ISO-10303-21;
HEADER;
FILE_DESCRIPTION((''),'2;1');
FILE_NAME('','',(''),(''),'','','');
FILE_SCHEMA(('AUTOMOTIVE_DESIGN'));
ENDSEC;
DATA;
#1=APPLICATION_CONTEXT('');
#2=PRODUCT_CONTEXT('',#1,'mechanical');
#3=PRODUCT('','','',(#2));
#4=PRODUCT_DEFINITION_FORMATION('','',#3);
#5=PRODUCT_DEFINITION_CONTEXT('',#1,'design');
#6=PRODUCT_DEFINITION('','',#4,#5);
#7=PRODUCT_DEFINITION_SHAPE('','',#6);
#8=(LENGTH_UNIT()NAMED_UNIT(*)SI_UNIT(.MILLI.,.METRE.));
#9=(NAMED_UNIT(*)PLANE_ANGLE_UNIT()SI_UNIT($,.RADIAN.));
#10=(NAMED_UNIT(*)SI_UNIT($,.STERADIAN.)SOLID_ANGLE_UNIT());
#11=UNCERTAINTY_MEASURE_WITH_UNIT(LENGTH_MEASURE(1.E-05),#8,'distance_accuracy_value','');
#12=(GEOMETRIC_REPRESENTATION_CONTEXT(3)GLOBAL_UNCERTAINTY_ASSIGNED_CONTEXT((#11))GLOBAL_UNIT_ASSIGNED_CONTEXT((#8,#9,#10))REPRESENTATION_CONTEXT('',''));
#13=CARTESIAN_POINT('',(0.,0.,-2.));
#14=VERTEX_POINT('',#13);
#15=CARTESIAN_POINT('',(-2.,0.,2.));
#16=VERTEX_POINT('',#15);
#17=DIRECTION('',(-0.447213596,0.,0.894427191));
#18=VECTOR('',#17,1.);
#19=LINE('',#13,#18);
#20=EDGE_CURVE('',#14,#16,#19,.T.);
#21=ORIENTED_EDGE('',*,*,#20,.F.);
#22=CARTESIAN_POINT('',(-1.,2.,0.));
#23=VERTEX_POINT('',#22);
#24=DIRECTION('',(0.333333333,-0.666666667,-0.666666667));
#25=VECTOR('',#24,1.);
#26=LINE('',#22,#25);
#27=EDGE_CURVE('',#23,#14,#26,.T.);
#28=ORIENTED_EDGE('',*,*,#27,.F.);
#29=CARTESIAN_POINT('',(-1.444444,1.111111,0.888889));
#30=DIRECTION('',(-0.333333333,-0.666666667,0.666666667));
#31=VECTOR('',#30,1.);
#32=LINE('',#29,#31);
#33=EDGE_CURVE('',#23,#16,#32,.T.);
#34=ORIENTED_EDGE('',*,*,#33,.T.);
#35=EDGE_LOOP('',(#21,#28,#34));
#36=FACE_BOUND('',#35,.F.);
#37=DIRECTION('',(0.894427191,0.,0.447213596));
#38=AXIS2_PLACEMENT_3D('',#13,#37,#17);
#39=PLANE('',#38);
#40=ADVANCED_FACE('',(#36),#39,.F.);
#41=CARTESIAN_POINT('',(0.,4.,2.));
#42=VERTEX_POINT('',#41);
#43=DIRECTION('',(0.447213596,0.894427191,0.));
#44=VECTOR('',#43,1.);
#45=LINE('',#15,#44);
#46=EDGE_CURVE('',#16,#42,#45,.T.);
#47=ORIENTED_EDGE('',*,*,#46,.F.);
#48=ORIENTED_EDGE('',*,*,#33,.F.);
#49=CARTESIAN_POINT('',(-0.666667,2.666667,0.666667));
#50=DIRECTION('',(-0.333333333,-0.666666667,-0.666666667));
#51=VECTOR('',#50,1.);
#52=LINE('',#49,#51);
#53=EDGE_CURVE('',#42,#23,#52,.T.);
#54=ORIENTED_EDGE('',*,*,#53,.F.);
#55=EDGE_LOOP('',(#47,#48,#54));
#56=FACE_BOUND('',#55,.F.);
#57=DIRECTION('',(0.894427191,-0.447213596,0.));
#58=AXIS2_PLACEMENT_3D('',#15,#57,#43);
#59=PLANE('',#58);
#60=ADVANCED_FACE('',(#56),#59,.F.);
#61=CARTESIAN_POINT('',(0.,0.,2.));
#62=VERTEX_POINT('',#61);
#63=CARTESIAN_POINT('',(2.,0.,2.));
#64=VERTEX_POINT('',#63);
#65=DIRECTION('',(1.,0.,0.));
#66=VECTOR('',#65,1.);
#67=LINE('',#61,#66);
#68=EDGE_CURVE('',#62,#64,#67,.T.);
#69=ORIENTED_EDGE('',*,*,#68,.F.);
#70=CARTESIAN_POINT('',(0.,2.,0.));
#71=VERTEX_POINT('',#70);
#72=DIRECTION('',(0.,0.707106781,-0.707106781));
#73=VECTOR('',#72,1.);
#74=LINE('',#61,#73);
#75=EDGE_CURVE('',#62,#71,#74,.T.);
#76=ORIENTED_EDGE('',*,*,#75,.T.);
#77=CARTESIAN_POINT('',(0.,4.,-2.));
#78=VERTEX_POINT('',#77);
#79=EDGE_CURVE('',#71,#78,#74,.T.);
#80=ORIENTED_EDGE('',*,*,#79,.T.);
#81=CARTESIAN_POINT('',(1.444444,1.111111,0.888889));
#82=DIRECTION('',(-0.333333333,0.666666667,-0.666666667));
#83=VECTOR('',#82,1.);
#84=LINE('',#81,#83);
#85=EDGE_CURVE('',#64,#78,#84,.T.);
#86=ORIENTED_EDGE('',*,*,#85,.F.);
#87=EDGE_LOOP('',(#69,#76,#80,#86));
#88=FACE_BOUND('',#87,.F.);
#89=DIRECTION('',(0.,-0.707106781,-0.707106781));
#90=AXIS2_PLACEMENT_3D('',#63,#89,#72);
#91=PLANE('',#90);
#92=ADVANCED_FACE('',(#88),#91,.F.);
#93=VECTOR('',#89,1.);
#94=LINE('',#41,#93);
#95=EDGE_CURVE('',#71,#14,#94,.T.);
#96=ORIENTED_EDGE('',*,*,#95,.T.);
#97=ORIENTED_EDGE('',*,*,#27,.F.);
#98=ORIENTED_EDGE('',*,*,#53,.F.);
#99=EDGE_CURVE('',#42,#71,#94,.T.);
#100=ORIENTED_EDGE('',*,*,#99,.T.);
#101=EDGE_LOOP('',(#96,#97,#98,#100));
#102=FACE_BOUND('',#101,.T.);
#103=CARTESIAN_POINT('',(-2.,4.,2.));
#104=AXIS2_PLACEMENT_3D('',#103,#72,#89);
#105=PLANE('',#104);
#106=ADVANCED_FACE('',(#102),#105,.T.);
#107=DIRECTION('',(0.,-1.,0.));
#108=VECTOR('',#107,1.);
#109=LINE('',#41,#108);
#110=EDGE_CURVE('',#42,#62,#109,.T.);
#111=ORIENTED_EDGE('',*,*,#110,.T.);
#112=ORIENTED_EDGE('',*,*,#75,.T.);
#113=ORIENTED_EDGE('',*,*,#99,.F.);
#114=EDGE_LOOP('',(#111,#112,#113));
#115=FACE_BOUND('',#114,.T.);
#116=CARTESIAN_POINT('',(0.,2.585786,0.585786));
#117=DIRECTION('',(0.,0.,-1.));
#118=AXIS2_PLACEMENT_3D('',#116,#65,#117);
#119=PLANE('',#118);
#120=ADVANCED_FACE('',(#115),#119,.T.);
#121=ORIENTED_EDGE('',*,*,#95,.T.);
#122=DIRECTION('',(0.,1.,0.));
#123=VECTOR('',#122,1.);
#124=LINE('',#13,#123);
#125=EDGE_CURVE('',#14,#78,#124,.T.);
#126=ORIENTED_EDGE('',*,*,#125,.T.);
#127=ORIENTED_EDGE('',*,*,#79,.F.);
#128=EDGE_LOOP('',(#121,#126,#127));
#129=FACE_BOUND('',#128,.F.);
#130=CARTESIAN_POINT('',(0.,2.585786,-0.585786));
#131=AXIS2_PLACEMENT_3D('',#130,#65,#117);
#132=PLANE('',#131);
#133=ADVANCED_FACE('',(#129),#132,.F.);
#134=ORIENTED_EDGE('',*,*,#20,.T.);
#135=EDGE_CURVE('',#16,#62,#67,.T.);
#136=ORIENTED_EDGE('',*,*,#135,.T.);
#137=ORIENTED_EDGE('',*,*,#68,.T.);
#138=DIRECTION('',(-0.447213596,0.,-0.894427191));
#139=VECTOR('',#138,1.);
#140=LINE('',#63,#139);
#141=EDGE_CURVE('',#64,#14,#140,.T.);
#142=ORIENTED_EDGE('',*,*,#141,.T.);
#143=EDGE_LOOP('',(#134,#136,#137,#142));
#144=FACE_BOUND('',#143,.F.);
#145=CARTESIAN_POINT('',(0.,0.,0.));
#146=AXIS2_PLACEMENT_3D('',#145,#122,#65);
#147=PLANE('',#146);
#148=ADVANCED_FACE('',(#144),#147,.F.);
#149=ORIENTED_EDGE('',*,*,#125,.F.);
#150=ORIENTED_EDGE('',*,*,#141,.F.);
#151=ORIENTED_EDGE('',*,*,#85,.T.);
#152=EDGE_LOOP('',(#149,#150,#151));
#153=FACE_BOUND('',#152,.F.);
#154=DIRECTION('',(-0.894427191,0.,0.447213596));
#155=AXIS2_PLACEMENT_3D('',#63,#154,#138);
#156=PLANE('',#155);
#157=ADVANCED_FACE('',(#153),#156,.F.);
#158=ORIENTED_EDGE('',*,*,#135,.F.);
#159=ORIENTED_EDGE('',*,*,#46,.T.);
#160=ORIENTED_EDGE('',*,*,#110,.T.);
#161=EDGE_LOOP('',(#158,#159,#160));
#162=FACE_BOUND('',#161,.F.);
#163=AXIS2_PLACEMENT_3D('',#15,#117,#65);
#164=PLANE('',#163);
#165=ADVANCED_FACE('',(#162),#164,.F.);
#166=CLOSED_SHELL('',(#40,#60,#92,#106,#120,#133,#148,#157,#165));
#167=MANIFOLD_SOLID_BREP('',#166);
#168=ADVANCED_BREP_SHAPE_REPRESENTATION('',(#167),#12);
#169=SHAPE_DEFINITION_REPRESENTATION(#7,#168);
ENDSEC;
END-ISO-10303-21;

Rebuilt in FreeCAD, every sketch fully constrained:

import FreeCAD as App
import Part
import Sketcher
Q = App.Units.Quantity


def add_polygon(sketch, points):
    """Adds a closed chain of lines whose ends are joined by coincident constraints."""
    first, n = sketch.GeometryCount, len(points)
    for a, b in zip(points, points[1:] + points[:1]):
        sketch.addGeometry(Part.LineSegment(App.Vector(*a, 0), App.Vector(*b, 0)), False)
    for i in range(n):
        sketch.addConstraint(Sketcher.Constraint("Coincident", first + i, 2, first + (i + 1) % n, 1))

doc = App.newDocument("Part")
body = doc.addObject("PartDesign::Body", "Body")

# Sketch on XZ plane
sketch1 = body.newObject("Sketcher::SketchObject", "Sketch")
sketch1.AttachmentSupport = (doc.getObject("XZ_Plane"), [""])
sketch1.MapMode = "FlatFace"
add_polygon(sketch1, [(-2, -2), (-2, 2), (2, 2), (2, -2)])  # lines 0-3
sketch1.addConstraint([
    Sketcher.Constraint("Vertical", 0),
    Sketcher.Constraint("Horizontal", 1),
    Sketcher.Constraint("Vertical", 2),
    Sketcher.Constraint("Horizontal", 3),
    Sketcher.Constraint("Symmetric", 0, 2, 2, 2, -1, 1),
    Sketcher.Constraint("Equal", 3, 0),
    Sketcher.Constraint("DistanceX", 1, 1, 1, 2, Q("4 mm")),
])
pad1 = body.newObject("PartDesign::Pad", "Pad")
pad1.Profile = sketch1
pad1.Length = 4
pad1.Reversed = True

# Sketch on YZ plane
sketch2 = body.newObject("Sketcher::SketchObject", "Sketch001")
sketch2.AttachmentSupport = (doc.getObject("YZ_Plane"), [""])
sketch2.MapMode = "FlatFace"
sketch2.AttachmentOffset = App.Placement(App.Vector(0, 0, -2), App.Rotation())
add_polygon(sketch2, [(0, -2), (4, 2), (4, -2)])  # lines 0-2
sketch2.addConstraint([
    Sketcher.Constraint("Vertical", 1),
    Sketcher.Constraint("Horizontal", 2),
    Sketcher.Constraint("PointOnObject", 2, 2, -2),
    Sketcher.Constraint("Equal", 2, 1),
    Sketcher.Constraint("DistanceX", 2, 2, 2, 1, Q("4 mm")),
    Sketcher.Constraint("DistanceY", -1, 1, 0, 2, Q("2 mm")),
])
pocket1 = body.newObject("PartDesign::Pocket", "Pocket")
pocket1.Profile = sketch2
pocket1.Length = 2
pocket1.Reversed = True

# Sketch on YZ plane
sketch3 = body.newObject("Sketcher::SketchObject", "Sketch002")
sketch3.AttachmentSupport = (doc.getObject("YZ_Plane"), [""])
sketch3.MapMode = "FlatFace"
sketch3.AttachmentOffset = App.Placement(App.Vector(0, 0, 2), App.Rotation())
add_polygon(sketch3, [(0, 2), (4, -2), (4, 2)])  # lines 0-2
sketch3.addConstraint([
    Sketcher.Constraint("Vertical", 1),
    Sketcher.Constraint("Horizontal", 2),
    Sketcher.Constraint("PointOnObject", 2, 2, -2),
    Sketcher.Constraint("Equal", 2, 1),
    Sketcher.Constraint("DistanceX", 2, 2, 2, 1, Q("4 mm")),
    Sketcher.Constraint("DistanceY", 0, 2, -1, 1, Q("2 mm")),
])
pocket2 = body.newObject("PartDesign::Pocket", "Pocket001")
pocket2.Profile = sketch3
pocket2.Length = 2

# Sketch on XY plane
sketch4 = body.newObject("Sketcher::SketchObject", "Sketch003")
sketch4.AttachmentSupport = (doc.getObject("XY_Plane"), [""])
sketch4.MapMode = "FlatFace"
sketch4.AttachmentOffset = App.Placement(App.Vector(0, 0, 2), App.Rotation())
add_polygon(sketch4, [(-2, 0), (0, 4), (-2, 4)])  # lines 0-2
add_polygon(sketch4, [(2, 4), (0, 4), (2, 0)])  # lines 3-5
sketch4.addConstraint([
    Sketcher.Constraint("Horizontal", 1),
    Sketcher.Constraint("Vertical", 2),
    Sketcher.Constraint("Horizontal", 3),
    Sketcher.Constraint("Vertical", 5),
    Sketcher.Constraint("Coincident", 3, 2, 0, 2),
    Sketcher.Constraint("Symmetric", 2, 2, 4, 2, -1, 1),
    Sketcher.Constraint("PointOnObject", 0, 2, -2),
    Sketcher.Constraint("PointOnObject", 2, 2, -1),
    Sketcher.Constraint("DistanceX", 1, 2, 1, 1, Q("2 mm")),
    Sketcher.Constraint("DistanceY", 2, 2, 2, 1, Q("4 mm")),
])
pocket3 = body.newObject("PartDesign::Pocket", "Pocket002")
pocket3.Profile = sketch4
pocket3.Length = 10

# Sketch on XZ plane
sketch5 = body.newObject("Sketcher::SketchObject", "Sketch004")
sketch5.AttachmentSupport = (doc.getObject("XZ_Plane"), [""])
sketch5.MapMode = "FlatFace"
add_polygon(sketch5, [(2, 2), (0, -2), (2, -2)])  # lines 0-2
add_polygon(sketch5, [(0, -2), (-2, 2), (-2, -2)])  # lines 3-5
sketch5.addConstraint([
    Sketcher.Constraint("Horizontal", 1),
    Sketcher.Constraint("Vertical", 2),
    Sketcher.Constraint("Vertical", 4),
    Sketcher.Constraint("Horizontal", 5),
    Sketcher.Constraint("Coincident", 5, 2, 0, 2),
    Sketcher.Constraint("Symmetric", 1, 2, 3, 2, -1, 1),
    Sketcher.Constraint("PointOnObject", 0, 2, -2),
    Sketcher.Constraint("Horizontal", 2, 2, 3, 2),
    Sketcher.Constraint("DistanceX", 1, 1, 1, 2, Q("2 mm")),
    Sketcher.Constraint("DistanceY", 2, 1, 2, 2, Q("4 mm")),
])
pocket4 = body.newObject("PartDesign::Pocket", "Pocket003")
pocket4.Profile = sketch5
pocket4.Length = 10

doc.recompute()
